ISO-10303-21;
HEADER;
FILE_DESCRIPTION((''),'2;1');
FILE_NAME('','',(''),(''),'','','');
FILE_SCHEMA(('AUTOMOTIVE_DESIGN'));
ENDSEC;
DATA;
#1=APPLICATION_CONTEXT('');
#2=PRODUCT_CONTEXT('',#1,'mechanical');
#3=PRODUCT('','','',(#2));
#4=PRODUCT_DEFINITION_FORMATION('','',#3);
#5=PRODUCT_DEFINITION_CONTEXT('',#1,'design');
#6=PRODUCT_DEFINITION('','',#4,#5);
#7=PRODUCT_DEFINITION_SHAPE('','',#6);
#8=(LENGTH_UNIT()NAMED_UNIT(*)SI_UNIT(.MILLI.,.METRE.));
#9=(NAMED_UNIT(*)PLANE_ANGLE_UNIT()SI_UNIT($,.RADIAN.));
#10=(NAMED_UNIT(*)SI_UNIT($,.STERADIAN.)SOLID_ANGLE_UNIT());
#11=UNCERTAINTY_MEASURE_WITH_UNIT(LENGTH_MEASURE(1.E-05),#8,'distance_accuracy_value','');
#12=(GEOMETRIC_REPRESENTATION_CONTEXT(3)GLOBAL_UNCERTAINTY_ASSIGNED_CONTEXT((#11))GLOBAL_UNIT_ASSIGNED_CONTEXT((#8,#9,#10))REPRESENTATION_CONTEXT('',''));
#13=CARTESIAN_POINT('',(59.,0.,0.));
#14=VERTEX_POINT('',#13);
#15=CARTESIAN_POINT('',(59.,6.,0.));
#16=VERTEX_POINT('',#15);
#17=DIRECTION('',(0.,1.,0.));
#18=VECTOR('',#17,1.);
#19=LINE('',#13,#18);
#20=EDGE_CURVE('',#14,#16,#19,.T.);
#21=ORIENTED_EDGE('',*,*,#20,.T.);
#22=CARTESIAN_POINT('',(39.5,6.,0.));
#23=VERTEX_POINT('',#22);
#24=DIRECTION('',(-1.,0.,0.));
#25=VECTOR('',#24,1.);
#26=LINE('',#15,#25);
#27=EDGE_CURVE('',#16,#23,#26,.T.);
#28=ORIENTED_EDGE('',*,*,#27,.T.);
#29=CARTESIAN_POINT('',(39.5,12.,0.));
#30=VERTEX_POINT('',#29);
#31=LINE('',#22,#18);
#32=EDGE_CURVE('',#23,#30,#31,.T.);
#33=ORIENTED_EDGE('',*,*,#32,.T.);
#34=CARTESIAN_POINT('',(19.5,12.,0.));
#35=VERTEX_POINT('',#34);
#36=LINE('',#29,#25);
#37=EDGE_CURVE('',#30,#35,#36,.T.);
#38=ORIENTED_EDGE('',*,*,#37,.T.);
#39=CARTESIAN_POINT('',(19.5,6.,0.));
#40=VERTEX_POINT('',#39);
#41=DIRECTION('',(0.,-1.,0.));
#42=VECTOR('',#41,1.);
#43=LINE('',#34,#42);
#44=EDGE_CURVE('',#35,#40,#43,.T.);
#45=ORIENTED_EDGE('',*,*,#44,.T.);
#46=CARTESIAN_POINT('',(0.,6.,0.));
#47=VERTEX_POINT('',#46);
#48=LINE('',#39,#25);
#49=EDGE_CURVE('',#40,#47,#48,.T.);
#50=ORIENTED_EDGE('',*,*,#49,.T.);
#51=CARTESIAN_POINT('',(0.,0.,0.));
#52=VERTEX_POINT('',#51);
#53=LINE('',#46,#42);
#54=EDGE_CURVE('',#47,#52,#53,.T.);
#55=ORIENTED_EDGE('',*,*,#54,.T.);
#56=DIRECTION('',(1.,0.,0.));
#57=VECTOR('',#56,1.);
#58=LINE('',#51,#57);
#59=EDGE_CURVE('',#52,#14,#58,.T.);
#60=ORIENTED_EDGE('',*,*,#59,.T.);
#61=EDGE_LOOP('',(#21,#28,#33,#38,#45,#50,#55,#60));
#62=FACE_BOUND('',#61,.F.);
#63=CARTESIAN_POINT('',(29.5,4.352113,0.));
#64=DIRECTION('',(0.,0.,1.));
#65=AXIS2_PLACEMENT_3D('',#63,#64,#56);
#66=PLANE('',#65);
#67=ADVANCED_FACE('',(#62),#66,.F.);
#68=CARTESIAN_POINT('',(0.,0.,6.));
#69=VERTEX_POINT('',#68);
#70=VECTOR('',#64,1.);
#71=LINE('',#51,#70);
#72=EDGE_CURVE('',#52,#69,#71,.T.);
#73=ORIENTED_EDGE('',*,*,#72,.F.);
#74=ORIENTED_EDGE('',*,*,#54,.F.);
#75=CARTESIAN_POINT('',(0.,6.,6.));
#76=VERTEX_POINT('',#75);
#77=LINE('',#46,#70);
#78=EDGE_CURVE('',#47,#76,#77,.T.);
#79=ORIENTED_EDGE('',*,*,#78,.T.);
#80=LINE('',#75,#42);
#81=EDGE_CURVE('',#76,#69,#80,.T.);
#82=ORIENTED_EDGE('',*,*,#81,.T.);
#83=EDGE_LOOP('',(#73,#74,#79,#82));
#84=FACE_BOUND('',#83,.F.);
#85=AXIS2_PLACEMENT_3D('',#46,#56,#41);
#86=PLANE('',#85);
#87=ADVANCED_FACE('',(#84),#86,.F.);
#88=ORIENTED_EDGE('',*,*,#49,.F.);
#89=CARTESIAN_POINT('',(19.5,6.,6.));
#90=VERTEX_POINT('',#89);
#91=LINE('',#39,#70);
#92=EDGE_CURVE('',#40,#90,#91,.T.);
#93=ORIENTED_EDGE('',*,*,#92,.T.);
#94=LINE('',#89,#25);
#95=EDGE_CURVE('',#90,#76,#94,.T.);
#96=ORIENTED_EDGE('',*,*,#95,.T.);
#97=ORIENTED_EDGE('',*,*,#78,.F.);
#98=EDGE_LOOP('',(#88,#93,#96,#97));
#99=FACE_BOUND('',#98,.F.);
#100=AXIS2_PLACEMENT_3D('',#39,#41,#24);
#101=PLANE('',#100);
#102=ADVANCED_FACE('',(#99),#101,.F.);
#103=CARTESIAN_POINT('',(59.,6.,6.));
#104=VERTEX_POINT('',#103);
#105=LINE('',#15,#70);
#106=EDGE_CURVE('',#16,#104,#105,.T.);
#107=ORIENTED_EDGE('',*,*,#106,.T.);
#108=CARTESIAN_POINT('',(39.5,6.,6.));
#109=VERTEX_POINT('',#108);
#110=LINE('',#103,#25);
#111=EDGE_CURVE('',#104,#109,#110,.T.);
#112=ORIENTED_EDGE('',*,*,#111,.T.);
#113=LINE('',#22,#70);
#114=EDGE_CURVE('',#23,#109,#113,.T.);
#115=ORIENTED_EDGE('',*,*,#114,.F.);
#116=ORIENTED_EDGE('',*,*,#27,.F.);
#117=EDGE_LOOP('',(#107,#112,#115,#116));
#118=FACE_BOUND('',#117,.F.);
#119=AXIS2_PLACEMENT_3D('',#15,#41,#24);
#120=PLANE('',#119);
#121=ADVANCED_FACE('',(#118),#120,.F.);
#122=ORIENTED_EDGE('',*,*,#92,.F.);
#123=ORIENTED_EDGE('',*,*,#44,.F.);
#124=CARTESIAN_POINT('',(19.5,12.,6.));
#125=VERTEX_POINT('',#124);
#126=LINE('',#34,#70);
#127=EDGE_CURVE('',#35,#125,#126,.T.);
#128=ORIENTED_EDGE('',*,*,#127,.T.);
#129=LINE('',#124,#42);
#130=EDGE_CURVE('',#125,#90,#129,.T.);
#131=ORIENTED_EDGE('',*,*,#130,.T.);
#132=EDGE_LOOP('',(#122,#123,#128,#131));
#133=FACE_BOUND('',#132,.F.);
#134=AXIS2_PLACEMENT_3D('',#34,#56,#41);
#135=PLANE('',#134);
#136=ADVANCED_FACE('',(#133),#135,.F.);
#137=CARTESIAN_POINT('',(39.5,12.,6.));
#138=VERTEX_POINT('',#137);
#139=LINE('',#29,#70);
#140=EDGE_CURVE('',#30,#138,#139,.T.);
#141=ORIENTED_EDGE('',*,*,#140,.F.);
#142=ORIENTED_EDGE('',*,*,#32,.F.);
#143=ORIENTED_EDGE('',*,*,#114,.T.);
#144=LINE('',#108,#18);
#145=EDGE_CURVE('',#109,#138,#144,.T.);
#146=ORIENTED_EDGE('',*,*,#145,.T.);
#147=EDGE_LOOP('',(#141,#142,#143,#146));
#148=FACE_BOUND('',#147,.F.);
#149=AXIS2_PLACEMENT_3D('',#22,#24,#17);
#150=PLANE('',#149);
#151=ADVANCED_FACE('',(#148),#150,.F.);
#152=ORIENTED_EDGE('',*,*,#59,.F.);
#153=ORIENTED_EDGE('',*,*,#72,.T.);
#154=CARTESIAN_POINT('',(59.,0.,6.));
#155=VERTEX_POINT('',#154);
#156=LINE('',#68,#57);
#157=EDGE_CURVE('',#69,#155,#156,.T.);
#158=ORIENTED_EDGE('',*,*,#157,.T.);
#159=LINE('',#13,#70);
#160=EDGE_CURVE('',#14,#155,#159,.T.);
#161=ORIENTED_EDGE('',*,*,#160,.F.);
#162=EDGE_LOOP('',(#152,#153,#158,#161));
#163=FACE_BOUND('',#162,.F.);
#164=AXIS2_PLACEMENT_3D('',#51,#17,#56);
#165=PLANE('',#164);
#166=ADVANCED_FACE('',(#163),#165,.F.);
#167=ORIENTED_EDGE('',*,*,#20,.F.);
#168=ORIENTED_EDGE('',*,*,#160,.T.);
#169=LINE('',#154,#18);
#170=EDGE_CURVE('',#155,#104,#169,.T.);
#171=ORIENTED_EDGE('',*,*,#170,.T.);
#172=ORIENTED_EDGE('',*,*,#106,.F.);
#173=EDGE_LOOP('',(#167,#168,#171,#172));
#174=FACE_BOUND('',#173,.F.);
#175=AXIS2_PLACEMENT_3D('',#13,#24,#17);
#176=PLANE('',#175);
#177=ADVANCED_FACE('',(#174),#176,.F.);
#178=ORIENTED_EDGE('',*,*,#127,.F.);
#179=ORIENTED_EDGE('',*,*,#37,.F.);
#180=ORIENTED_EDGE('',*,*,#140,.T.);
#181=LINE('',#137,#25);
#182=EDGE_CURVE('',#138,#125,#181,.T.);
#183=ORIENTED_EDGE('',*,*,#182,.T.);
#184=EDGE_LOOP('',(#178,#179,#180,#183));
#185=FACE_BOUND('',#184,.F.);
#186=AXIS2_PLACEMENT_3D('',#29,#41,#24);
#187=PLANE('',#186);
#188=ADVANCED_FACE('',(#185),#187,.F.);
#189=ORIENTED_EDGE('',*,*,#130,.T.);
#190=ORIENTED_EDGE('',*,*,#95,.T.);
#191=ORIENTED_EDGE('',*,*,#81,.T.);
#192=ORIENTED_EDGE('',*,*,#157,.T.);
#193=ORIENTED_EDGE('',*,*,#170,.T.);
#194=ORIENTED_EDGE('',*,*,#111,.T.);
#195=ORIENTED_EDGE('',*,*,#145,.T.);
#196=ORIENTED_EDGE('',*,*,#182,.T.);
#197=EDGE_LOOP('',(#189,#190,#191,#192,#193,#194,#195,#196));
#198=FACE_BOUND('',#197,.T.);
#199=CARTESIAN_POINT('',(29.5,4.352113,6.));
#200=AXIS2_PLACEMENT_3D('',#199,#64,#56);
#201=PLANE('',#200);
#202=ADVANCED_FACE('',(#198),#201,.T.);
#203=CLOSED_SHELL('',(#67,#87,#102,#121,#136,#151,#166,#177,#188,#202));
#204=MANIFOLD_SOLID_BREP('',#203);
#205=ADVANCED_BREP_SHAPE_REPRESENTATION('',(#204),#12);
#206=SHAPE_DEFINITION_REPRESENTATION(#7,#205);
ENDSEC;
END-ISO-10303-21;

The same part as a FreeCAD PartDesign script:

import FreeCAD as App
import Part
import Sketcher

V = App.Vector


def add_polygon(sketch, points):
    """Adds a closed chain of lines whose ends are joined by coincident constraints."""
    first, n = sketch.GeometryCount, len(points)
    for a, b in zip(points, points[1:] + points[:1]):
        sketch.addGeometry(Part.LineSegment(App.Vector(*a, 0), App.Vector(*b, 0)), False)
    for i in range(n):
        sketch.addConstraint(Sketcher.Constraint("Coincident", first + i, 2, first + (i + 1) % n, 1))

doc = App.newDocument("Part")
body = doc.addObject("PartDesign::Body", "Body")

# Sketch on XY plane
sketch1 = body.newObject("Sketcher::SketchObject", "Sketch")
sketch1.AttachmentSupport = (doc.getObject("XY_Plane"), [""])
sketch1.MapMode = "FlatFace"
add_polygon(sketch1, [(20, 12), (20, 6), (0, 6), (0, 0), (59, 0), (59, 6), (40, 6), (40, 12)])  # lines 0-7
sketch1.addConstraint(Sketcher.Constraint("Vertical", 0))
sketch1.addConstraint(Sketcher.Constraint("Horizontal", 1))
sketch1.addConstraint(Sketcher.Constraint("Vertical", 2))
sketch1.addConstraint(Sketcher.Constraint("Horizontal", 3))
sketch1.addConstraint(Sketcher.Constraint("Vertical", 4))
sketch1.addConstraint(Sketcher.Constraint("Horizontal", 5))
sketch1.addConstraint(Sketcher.Constraint("Vertical", 6))
sketch1.addConstraint(Sketcher.Constraint("Horizontal", 7))
sketch1.addConstraint(Sketcher.Constraint("Coincident", 2, 2, -1, 1))
sketch1.addConstraint(Sketcher.Constraint("Horizontal", 1, 2, 4, 2))
sketch1.addConstraint(Sketcher.Constraint("Equal", 1, 5))
sketch1.addConstraint(Sketcher.Constraint("Equal", 0, 2))
sketch1.addConstraint(Sketcher.Constraint("DistanceX", 3, 1, 3, 2, 59.0))
sketch1.addConstraint(Sketcher.Constraint("DistanceX", 7, 2, 7, 1, 20.0))
sketch1.addConstraint(Sketcher.Constraint("DistanceY", 0, 2, 0, 1, 6.0))
pad1 = body.newObject("PartDesign::Pad", "Pad")
pad1.Profile = sketch1
pad1.Length = 6

doc.recompute()
